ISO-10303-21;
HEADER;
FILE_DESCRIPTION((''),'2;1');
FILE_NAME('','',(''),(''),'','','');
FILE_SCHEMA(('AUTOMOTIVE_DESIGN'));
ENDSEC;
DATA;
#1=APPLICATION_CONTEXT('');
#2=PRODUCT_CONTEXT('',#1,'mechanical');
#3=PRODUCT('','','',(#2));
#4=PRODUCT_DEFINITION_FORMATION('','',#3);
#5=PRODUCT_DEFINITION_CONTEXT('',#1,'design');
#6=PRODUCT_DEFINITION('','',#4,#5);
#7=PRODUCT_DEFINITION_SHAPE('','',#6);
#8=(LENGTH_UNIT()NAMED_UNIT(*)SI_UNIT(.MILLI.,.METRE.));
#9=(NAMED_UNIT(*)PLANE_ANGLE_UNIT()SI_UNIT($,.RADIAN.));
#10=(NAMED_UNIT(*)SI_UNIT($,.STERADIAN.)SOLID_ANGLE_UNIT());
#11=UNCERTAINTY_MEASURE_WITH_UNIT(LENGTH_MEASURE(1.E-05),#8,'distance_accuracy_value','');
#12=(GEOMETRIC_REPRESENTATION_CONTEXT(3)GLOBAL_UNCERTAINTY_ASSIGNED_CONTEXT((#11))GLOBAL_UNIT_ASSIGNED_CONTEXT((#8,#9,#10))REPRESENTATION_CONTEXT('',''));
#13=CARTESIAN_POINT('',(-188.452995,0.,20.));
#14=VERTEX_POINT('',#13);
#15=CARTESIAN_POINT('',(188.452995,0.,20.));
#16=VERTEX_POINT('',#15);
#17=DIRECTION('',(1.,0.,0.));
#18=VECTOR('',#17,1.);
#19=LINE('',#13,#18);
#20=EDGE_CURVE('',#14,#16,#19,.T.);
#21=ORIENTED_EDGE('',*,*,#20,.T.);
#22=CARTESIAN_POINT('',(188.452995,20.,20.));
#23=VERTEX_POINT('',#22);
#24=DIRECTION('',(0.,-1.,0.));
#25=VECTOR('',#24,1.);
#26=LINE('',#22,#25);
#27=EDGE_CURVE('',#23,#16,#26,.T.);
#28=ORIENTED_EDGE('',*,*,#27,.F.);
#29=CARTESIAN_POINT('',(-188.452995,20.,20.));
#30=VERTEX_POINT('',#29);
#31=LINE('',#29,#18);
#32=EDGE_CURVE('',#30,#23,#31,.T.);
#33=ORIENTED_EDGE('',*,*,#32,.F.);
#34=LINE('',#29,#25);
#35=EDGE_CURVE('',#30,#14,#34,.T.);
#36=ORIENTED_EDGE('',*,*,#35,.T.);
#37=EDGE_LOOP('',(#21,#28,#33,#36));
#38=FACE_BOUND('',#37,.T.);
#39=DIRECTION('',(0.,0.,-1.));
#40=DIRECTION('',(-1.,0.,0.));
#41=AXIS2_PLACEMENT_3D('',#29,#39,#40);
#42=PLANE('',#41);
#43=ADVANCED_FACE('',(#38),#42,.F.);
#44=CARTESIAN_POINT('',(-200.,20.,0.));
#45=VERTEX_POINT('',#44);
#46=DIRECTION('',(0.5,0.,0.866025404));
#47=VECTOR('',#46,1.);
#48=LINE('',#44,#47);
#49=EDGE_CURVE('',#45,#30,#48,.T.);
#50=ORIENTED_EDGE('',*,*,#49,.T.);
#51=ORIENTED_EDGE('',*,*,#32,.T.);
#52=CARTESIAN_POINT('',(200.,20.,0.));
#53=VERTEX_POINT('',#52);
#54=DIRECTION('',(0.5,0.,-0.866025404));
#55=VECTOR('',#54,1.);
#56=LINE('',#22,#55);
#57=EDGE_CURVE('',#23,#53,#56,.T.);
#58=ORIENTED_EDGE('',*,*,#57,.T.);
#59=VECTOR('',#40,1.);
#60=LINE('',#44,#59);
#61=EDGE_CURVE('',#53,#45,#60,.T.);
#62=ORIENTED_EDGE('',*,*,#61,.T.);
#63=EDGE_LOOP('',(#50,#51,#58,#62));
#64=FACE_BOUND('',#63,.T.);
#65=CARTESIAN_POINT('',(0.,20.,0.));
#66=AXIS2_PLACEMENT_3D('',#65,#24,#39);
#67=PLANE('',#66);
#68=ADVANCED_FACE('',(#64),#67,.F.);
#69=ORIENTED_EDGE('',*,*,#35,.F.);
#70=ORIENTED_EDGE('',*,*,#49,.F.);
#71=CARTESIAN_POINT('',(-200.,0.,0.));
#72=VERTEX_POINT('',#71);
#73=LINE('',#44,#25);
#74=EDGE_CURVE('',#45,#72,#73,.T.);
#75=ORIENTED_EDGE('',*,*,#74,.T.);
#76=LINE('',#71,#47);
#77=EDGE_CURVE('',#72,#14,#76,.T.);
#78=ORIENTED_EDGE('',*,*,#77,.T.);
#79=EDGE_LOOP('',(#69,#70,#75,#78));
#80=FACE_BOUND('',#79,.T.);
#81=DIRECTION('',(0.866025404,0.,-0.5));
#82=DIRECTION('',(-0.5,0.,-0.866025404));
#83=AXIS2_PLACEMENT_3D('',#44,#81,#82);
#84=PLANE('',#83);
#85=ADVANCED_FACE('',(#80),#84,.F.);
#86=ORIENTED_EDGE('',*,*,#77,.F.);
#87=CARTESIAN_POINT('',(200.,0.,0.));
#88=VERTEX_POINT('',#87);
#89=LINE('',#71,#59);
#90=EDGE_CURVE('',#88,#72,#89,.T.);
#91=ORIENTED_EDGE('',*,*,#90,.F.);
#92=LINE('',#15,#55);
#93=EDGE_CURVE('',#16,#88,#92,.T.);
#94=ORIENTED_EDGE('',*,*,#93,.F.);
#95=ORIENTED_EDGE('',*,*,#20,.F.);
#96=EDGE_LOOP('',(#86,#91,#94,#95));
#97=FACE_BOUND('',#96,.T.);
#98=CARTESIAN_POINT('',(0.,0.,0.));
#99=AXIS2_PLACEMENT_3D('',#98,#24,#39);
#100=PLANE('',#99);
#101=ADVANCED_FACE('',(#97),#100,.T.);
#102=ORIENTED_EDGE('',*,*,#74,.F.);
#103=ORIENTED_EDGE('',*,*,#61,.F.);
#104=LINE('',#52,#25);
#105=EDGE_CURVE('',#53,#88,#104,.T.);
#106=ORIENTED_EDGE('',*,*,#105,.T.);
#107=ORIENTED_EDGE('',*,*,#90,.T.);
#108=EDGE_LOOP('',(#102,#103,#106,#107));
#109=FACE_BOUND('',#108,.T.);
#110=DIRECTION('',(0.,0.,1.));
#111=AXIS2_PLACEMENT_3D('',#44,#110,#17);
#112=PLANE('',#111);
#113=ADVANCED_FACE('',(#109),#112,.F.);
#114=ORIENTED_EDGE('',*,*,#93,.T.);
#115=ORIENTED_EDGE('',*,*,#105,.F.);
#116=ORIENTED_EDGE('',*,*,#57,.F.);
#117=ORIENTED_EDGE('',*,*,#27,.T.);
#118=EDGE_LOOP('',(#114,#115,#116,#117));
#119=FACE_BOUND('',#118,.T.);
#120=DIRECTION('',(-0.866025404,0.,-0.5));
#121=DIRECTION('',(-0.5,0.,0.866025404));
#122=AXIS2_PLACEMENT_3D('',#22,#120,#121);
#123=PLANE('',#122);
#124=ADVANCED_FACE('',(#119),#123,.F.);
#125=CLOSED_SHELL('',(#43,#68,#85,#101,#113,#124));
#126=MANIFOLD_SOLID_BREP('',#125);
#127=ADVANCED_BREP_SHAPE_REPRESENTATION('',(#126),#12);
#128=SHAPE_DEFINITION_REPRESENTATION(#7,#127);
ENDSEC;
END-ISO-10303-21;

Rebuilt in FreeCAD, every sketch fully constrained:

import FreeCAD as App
import Part
import Sketcher
from FreeCAD import Vector
Q = App.Units.Quantity


def add_polygon(sketch, points):
    """Adds a closed chain of lines whose ends are joined by coincident constraints."""
    first, n = sketch.GeometryCount, len(points)
    for a, b in zip(points, points[1:] + points[:1]):
        sketch.addGeometry(Part.LineSegment(App.Vector(*a, 0), App.Vector(*b, 0)), False)
    for i in range(n):
        sketch.addConstraint(Sketcher.Constraint("Coincident", first + i, 2, first + (i + 1) % n, 1))

doc = App.newDocument("Part")
body = doc.addObject("PartDesign::Body", "Body")

# Sketch on XZ plane
sketch1 = doc.addObject("Sketcher::SketchObject", "Sketch")
body.addObject(sketch1)
sketch1.AttachmentSupport = (doc.XZ_Plane, [""])
sketch1.MapMode = "FlatFace"
add_polygon(sketch1, [(200, 0), (-200, 0), (-188, 20), (188, 20)])  # lines 0-3
sketch1.addConstraint(Sketcher.Constraint("Horizontal", 0))
sketch1.addConstraint(Sketcher.Constraint("Horizontal", 2))
sketch1.addConstraint(Sketcher.Constraint("Symmetric", 0, 2, 3, 2, -1, 1))
sketch1.addConstraint(Sketcher.Constraint("Equal", 1, 3))
sketch1.addConstraint(Sketcher.Constraint("DistanceX", 0, 2, 0, 1, 400.0))
sketch1.addConstraint(Sketcher.Constraint("Angle", 1, Q("60 deg")))
sketch1.addConstraint(Sketcher.Constraint("DistanceY", -1, 1, 1, 2, 20.0))
pad1 = doc.addObject("PartDesign::Pad", "Pad")
body.addObject(pad1)
pad1.Profile = sketch1
pad1.Length = 20
pad1.Reversed = True

doc.recompute()
